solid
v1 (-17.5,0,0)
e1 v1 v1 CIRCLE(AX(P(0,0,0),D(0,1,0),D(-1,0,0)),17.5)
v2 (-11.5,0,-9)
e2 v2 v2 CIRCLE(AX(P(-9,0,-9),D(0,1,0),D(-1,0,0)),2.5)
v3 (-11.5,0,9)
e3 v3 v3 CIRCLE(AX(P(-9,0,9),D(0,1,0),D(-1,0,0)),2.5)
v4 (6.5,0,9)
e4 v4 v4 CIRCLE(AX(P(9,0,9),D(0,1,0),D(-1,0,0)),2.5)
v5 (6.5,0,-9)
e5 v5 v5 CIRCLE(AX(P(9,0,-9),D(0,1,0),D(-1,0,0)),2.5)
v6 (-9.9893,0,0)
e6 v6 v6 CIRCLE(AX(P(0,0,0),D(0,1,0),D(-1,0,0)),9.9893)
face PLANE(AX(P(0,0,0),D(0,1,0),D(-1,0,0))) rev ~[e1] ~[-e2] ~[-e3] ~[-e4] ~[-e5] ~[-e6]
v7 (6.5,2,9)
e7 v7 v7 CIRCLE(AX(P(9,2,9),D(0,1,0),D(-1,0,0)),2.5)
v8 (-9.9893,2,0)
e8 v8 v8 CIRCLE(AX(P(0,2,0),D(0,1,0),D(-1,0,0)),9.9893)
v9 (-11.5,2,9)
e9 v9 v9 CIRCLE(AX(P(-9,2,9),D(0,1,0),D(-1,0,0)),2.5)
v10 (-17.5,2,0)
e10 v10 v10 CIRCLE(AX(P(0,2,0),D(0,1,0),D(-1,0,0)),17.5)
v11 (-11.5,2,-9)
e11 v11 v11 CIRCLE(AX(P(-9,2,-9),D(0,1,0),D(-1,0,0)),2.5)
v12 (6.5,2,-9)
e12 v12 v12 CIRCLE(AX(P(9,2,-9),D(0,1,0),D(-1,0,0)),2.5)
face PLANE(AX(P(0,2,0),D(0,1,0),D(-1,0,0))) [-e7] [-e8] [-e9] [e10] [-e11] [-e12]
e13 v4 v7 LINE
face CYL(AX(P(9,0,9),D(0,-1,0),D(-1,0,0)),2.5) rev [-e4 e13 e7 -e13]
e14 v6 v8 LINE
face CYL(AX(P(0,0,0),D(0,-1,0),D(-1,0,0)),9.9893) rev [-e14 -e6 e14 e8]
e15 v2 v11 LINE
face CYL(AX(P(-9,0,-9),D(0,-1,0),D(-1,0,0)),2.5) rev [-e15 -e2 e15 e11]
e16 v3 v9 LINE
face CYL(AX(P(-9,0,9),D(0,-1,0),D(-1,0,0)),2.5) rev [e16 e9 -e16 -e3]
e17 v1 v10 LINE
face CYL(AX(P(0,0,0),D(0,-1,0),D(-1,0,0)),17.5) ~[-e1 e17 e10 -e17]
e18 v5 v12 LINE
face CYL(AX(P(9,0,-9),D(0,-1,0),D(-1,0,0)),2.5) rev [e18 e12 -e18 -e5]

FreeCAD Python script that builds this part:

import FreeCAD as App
import Part
import Sketcher

V = App.Vector

doc = App.newDocument("Part")
params = doc.addObject("Spreadsheet::Sheet", "Params")
for row, (alias, value) in enumerate([
    ("sketch1_diameter", "35 mm"),
    ("sketch1_diameter2", "5 mm"),
    ("pad1_length", "2 mm"),
], start=1):
    params.set(f"A{row}", alias)
    params.set(f"B{row}", "=" + value)
    params.setAlias(f"B{row}", alias)

body = doc.addObject("PartDesign::Body", "Body")

# Sketch on XZ plane
sketch1 = body.newObject("Sketcher::SketchObject", "Sketch")
sketch1.AttachmentSupport = (doc.getObject("XZ_Plane"), [""])
sketch1.MapMode = "FlatFace"
sketch1.addGeometry([
    Part.Circle(V(0, 0, 0), V(0, 0, 1), 17.5),  # 0
    Part.Circle(V(9, -9, 0), V(0, 0, 1), 2.5),  # 1
    Part.Circle(V(-9, -9, 0), V(0, 0, 1), 2.5),  # 2
    Part.Circle(V(9, 9, 0), V(0, 0, 1), 2.5),  # 3
    Part.Circle(V(0, 0, 0), V(0, 0, 1), 10),  # 4
    Part.Circle(V(-9, 9, 0), V(0, 0, 1), 2.5),  # 5
], False)
sketch1.addConstraint([
    Sketcher.Constraint("Coincident", 0, 3, -1, 1),
    Sketcher.Constraint("Coincident", 4, 3, -1, 1),
    Sketcher.Constraint("Equal", 1, 2),
    Sketcher.Constraint("Equal", 2, 3),
    Sketcher.Constraint("Equal", 3, 5),
    Sketcher.Constraint("Symmetric", 2, 3, 3, 3, -1, 1),
    Sketcher.Constraint("Symmetric", 1, 3, 5, 3, -1, 1),
    Sketcher.Constraint("Symmetric", 1, 3, 2, 3, -2),
    Sketcher.Constraint("Diameter", 0, 35.0),
    Sketcher.Constraint("Diameter", 1, 5.0),
    Sketcher.Constraint("DistanceX", -1, 1, 1, 3, 9.0),
    Sketcher.Constraint("DistanceY", 1, 3, -1, 1, 9.0),
    Sketcher.Constraint("Diameter", 4, 19.9786),
])
sketch1.setExpression("Constraints[8]", "Params.sketch1_diameter")
sketch1.setExpression("Constraints[9]", "Params.sketch1_diameter2")
pad1 = body.newObject("PartDesign::Pad", "Pad")
pad1.Profile = sketch1
pad1.setExpression("Length", "Params.pad1_length")
pad1.Reversed = True

doc.recompute()
